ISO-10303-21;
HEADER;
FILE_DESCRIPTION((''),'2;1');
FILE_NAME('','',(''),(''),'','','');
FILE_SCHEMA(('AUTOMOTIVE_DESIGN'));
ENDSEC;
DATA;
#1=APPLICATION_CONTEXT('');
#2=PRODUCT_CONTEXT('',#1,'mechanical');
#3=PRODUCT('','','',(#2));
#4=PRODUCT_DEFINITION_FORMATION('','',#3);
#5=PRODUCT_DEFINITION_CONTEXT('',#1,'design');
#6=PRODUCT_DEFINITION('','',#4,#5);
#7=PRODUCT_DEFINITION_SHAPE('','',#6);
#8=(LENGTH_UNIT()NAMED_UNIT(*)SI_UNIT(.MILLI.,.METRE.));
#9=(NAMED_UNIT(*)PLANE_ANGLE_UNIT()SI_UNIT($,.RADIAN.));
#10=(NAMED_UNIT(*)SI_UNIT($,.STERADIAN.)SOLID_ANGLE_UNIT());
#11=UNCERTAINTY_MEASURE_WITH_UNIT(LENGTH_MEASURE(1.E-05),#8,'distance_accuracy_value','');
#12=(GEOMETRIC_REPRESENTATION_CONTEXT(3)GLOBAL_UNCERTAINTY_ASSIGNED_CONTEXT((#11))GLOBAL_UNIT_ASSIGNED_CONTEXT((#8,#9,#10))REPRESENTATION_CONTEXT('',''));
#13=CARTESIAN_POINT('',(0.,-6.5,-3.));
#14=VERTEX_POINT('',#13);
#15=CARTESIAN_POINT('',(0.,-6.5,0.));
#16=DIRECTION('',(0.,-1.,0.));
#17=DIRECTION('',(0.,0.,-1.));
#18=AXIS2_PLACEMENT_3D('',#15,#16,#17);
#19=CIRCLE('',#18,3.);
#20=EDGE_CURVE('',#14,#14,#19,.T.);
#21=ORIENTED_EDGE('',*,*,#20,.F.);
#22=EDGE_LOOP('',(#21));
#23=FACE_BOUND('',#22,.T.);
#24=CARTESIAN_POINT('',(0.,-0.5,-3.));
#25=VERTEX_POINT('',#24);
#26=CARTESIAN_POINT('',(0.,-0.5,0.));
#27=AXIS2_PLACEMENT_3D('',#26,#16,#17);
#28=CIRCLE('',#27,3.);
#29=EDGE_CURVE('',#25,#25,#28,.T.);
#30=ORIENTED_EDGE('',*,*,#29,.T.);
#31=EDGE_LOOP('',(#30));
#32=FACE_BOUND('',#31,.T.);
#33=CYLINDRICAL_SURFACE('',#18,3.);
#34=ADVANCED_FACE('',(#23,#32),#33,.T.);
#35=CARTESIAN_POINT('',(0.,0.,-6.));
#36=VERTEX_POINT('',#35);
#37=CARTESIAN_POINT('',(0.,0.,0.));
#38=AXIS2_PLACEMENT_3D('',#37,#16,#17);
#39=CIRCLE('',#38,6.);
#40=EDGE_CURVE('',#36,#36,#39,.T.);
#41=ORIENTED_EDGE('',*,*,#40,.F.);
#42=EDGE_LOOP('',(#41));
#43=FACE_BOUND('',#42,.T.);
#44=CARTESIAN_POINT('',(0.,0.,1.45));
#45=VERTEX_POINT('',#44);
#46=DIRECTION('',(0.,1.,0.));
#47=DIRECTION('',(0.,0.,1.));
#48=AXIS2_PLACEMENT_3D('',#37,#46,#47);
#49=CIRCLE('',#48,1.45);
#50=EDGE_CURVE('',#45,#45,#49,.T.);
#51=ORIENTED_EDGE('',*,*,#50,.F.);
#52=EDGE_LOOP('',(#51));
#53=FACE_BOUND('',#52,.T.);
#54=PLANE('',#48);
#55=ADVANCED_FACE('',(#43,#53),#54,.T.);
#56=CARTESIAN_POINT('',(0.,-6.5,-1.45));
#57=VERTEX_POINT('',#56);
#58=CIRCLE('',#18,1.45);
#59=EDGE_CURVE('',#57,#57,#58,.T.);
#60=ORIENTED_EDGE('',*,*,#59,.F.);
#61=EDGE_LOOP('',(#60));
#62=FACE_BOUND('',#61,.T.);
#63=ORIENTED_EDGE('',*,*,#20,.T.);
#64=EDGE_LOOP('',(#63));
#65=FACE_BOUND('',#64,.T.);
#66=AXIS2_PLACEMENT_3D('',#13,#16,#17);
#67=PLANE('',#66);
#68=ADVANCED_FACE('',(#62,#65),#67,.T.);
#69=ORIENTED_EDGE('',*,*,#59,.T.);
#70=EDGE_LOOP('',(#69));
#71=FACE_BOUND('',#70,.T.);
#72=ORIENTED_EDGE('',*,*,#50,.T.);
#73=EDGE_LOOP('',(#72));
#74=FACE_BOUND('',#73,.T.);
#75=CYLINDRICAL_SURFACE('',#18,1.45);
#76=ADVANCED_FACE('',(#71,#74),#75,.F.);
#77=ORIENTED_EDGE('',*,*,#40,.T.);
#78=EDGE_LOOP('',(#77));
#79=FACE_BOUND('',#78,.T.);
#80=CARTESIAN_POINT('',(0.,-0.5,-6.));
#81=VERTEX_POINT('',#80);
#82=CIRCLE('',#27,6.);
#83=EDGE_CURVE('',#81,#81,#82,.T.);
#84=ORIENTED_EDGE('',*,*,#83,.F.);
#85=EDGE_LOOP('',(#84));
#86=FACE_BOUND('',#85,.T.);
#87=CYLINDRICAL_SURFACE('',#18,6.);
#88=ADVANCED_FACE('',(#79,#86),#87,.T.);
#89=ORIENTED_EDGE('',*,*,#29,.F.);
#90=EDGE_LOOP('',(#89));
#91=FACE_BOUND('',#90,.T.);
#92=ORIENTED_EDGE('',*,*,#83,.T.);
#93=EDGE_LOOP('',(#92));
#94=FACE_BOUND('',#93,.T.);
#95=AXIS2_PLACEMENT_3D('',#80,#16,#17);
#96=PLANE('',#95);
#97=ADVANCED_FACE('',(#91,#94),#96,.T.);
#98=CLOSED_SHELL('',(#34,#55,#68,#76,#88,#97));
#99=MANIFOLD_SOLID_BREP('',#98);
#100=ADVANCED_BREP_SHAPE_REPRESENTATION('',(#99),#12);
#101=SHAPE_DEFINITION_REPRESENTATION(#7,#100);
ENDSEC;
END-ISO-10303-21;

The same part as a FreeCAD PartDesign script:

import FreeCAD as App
import Part
import Sketcher
from FreeCAD import Vector

doc = App.newDocument("Part")
body = doc.addObject("PartDesign::Body", "Body")

# Sketch on YZ plane
sketch1 = body.newObject("Sketcher::SketchObject", "Sketch")
sketch1.AttachmentSupport = (doc.getObject("YZ_Plane"), [""])
sketch1.MapMode = "FlatFace"
sketch1.addGeometry([
    Part.LineSegment(Vector(0, -6, 0), Vector(0, 0, 0)),  # 0
    Part.LineSegment(Vector(0, 0, 0), Vector(-6.5, 0, 0)),  # 1
    Part.LineSegment(Vector(-6.5, 0, 0), Vector(-6.5, -3, 0)),  # 2
    Part.LineSegment(Vector(-6.5, -3, 0), Vector(-0.5, -3, 0)),  # 3
    Part.LineSegment(Vector(-0.5, -3, 0), Vector(-0.5, -6, 0)),  # 4
    Part.LineSegment(Vector(-0.5, -6, 0), Vector(0, -6, 0)),  # 5
], False)
sketch1.addConstraint([
    Sketcher.Constraint("Coincident", 0, 2, 1, 1),
    Sketcher.Constraint("Coincident", 1, 2, 2, 1),
    Sketcher.Constraint("Coincident", 2, 2, 3, 1),
    Sketcher.Constraint("Coincident", 3, 2, 4, 1),
    Sketcher.Constraint("Coincident", 4, 2, 5, 1),
    Sketcher.Constraint("Coincident", 5, 2, 0, 1),
    Sketcher.Constraint("Vertical", 0),
    Sketcher.Constraint("Horizontal", 1),
    Sketcher.Constraint("Vertical", 2),
    Sketcher.Constraint("Horizontal", 3),
    Sketcher.Constraint("Vertical", 4),
    Sketcher.Constraint("Horizontal", 5),
    Sketcher.Constraint("Coincident", 0, 2, -1, 1),
    Sketcher.Constraint("Equal", 3, 0),
    Sketcher.Constraint("Equal", 2, 4),
    Sketcher.Constraint("DistanceX", 3, 1, 3, 2, 6.0),
    Sketcher.Constraint("DistanceX", 1, 2, 1, 1, 6.5),
])
revolution = body.newObject("PartDesign::Revolution", "Revolution")
revolution.Profile = sketch1
revolution.ReferenceAxis = (sketch1, ["H_Axis"])
revolution.Angle = 360

# Sketch on XZ plane
sketch2 = body.newObject("Sketcher::SketchObject", "Sketch001")
sketch2.AttachmentSupport = (doc.getObject("XZ_Plane"), [""])
sketch2.MapMode = "FlatFace"
sketch2.AttachmentOffset = App.Placement(Vector(0, 0, 6.5), App.Rotation())
sketch2.addGeometry(Part.Circle(Vector(0, 0, 0), Vector(0, 0, 1), 1.4), False)
sketch2.addConstraint([
    Sketcher.Constraint("Coincident", 0, 3, -1, 1),
    Sketcher.Constraint("Diameter", 0, 2.9),
])
doc.recompute()
hole = body.newObject("PartDesign::Hole", "Hole")
hole.Profile = sketch2
hole.ThreadType = "None"
hole.Diameter = 2.9
hole.DepthType = "ThroughAll"

doc.recompute()
